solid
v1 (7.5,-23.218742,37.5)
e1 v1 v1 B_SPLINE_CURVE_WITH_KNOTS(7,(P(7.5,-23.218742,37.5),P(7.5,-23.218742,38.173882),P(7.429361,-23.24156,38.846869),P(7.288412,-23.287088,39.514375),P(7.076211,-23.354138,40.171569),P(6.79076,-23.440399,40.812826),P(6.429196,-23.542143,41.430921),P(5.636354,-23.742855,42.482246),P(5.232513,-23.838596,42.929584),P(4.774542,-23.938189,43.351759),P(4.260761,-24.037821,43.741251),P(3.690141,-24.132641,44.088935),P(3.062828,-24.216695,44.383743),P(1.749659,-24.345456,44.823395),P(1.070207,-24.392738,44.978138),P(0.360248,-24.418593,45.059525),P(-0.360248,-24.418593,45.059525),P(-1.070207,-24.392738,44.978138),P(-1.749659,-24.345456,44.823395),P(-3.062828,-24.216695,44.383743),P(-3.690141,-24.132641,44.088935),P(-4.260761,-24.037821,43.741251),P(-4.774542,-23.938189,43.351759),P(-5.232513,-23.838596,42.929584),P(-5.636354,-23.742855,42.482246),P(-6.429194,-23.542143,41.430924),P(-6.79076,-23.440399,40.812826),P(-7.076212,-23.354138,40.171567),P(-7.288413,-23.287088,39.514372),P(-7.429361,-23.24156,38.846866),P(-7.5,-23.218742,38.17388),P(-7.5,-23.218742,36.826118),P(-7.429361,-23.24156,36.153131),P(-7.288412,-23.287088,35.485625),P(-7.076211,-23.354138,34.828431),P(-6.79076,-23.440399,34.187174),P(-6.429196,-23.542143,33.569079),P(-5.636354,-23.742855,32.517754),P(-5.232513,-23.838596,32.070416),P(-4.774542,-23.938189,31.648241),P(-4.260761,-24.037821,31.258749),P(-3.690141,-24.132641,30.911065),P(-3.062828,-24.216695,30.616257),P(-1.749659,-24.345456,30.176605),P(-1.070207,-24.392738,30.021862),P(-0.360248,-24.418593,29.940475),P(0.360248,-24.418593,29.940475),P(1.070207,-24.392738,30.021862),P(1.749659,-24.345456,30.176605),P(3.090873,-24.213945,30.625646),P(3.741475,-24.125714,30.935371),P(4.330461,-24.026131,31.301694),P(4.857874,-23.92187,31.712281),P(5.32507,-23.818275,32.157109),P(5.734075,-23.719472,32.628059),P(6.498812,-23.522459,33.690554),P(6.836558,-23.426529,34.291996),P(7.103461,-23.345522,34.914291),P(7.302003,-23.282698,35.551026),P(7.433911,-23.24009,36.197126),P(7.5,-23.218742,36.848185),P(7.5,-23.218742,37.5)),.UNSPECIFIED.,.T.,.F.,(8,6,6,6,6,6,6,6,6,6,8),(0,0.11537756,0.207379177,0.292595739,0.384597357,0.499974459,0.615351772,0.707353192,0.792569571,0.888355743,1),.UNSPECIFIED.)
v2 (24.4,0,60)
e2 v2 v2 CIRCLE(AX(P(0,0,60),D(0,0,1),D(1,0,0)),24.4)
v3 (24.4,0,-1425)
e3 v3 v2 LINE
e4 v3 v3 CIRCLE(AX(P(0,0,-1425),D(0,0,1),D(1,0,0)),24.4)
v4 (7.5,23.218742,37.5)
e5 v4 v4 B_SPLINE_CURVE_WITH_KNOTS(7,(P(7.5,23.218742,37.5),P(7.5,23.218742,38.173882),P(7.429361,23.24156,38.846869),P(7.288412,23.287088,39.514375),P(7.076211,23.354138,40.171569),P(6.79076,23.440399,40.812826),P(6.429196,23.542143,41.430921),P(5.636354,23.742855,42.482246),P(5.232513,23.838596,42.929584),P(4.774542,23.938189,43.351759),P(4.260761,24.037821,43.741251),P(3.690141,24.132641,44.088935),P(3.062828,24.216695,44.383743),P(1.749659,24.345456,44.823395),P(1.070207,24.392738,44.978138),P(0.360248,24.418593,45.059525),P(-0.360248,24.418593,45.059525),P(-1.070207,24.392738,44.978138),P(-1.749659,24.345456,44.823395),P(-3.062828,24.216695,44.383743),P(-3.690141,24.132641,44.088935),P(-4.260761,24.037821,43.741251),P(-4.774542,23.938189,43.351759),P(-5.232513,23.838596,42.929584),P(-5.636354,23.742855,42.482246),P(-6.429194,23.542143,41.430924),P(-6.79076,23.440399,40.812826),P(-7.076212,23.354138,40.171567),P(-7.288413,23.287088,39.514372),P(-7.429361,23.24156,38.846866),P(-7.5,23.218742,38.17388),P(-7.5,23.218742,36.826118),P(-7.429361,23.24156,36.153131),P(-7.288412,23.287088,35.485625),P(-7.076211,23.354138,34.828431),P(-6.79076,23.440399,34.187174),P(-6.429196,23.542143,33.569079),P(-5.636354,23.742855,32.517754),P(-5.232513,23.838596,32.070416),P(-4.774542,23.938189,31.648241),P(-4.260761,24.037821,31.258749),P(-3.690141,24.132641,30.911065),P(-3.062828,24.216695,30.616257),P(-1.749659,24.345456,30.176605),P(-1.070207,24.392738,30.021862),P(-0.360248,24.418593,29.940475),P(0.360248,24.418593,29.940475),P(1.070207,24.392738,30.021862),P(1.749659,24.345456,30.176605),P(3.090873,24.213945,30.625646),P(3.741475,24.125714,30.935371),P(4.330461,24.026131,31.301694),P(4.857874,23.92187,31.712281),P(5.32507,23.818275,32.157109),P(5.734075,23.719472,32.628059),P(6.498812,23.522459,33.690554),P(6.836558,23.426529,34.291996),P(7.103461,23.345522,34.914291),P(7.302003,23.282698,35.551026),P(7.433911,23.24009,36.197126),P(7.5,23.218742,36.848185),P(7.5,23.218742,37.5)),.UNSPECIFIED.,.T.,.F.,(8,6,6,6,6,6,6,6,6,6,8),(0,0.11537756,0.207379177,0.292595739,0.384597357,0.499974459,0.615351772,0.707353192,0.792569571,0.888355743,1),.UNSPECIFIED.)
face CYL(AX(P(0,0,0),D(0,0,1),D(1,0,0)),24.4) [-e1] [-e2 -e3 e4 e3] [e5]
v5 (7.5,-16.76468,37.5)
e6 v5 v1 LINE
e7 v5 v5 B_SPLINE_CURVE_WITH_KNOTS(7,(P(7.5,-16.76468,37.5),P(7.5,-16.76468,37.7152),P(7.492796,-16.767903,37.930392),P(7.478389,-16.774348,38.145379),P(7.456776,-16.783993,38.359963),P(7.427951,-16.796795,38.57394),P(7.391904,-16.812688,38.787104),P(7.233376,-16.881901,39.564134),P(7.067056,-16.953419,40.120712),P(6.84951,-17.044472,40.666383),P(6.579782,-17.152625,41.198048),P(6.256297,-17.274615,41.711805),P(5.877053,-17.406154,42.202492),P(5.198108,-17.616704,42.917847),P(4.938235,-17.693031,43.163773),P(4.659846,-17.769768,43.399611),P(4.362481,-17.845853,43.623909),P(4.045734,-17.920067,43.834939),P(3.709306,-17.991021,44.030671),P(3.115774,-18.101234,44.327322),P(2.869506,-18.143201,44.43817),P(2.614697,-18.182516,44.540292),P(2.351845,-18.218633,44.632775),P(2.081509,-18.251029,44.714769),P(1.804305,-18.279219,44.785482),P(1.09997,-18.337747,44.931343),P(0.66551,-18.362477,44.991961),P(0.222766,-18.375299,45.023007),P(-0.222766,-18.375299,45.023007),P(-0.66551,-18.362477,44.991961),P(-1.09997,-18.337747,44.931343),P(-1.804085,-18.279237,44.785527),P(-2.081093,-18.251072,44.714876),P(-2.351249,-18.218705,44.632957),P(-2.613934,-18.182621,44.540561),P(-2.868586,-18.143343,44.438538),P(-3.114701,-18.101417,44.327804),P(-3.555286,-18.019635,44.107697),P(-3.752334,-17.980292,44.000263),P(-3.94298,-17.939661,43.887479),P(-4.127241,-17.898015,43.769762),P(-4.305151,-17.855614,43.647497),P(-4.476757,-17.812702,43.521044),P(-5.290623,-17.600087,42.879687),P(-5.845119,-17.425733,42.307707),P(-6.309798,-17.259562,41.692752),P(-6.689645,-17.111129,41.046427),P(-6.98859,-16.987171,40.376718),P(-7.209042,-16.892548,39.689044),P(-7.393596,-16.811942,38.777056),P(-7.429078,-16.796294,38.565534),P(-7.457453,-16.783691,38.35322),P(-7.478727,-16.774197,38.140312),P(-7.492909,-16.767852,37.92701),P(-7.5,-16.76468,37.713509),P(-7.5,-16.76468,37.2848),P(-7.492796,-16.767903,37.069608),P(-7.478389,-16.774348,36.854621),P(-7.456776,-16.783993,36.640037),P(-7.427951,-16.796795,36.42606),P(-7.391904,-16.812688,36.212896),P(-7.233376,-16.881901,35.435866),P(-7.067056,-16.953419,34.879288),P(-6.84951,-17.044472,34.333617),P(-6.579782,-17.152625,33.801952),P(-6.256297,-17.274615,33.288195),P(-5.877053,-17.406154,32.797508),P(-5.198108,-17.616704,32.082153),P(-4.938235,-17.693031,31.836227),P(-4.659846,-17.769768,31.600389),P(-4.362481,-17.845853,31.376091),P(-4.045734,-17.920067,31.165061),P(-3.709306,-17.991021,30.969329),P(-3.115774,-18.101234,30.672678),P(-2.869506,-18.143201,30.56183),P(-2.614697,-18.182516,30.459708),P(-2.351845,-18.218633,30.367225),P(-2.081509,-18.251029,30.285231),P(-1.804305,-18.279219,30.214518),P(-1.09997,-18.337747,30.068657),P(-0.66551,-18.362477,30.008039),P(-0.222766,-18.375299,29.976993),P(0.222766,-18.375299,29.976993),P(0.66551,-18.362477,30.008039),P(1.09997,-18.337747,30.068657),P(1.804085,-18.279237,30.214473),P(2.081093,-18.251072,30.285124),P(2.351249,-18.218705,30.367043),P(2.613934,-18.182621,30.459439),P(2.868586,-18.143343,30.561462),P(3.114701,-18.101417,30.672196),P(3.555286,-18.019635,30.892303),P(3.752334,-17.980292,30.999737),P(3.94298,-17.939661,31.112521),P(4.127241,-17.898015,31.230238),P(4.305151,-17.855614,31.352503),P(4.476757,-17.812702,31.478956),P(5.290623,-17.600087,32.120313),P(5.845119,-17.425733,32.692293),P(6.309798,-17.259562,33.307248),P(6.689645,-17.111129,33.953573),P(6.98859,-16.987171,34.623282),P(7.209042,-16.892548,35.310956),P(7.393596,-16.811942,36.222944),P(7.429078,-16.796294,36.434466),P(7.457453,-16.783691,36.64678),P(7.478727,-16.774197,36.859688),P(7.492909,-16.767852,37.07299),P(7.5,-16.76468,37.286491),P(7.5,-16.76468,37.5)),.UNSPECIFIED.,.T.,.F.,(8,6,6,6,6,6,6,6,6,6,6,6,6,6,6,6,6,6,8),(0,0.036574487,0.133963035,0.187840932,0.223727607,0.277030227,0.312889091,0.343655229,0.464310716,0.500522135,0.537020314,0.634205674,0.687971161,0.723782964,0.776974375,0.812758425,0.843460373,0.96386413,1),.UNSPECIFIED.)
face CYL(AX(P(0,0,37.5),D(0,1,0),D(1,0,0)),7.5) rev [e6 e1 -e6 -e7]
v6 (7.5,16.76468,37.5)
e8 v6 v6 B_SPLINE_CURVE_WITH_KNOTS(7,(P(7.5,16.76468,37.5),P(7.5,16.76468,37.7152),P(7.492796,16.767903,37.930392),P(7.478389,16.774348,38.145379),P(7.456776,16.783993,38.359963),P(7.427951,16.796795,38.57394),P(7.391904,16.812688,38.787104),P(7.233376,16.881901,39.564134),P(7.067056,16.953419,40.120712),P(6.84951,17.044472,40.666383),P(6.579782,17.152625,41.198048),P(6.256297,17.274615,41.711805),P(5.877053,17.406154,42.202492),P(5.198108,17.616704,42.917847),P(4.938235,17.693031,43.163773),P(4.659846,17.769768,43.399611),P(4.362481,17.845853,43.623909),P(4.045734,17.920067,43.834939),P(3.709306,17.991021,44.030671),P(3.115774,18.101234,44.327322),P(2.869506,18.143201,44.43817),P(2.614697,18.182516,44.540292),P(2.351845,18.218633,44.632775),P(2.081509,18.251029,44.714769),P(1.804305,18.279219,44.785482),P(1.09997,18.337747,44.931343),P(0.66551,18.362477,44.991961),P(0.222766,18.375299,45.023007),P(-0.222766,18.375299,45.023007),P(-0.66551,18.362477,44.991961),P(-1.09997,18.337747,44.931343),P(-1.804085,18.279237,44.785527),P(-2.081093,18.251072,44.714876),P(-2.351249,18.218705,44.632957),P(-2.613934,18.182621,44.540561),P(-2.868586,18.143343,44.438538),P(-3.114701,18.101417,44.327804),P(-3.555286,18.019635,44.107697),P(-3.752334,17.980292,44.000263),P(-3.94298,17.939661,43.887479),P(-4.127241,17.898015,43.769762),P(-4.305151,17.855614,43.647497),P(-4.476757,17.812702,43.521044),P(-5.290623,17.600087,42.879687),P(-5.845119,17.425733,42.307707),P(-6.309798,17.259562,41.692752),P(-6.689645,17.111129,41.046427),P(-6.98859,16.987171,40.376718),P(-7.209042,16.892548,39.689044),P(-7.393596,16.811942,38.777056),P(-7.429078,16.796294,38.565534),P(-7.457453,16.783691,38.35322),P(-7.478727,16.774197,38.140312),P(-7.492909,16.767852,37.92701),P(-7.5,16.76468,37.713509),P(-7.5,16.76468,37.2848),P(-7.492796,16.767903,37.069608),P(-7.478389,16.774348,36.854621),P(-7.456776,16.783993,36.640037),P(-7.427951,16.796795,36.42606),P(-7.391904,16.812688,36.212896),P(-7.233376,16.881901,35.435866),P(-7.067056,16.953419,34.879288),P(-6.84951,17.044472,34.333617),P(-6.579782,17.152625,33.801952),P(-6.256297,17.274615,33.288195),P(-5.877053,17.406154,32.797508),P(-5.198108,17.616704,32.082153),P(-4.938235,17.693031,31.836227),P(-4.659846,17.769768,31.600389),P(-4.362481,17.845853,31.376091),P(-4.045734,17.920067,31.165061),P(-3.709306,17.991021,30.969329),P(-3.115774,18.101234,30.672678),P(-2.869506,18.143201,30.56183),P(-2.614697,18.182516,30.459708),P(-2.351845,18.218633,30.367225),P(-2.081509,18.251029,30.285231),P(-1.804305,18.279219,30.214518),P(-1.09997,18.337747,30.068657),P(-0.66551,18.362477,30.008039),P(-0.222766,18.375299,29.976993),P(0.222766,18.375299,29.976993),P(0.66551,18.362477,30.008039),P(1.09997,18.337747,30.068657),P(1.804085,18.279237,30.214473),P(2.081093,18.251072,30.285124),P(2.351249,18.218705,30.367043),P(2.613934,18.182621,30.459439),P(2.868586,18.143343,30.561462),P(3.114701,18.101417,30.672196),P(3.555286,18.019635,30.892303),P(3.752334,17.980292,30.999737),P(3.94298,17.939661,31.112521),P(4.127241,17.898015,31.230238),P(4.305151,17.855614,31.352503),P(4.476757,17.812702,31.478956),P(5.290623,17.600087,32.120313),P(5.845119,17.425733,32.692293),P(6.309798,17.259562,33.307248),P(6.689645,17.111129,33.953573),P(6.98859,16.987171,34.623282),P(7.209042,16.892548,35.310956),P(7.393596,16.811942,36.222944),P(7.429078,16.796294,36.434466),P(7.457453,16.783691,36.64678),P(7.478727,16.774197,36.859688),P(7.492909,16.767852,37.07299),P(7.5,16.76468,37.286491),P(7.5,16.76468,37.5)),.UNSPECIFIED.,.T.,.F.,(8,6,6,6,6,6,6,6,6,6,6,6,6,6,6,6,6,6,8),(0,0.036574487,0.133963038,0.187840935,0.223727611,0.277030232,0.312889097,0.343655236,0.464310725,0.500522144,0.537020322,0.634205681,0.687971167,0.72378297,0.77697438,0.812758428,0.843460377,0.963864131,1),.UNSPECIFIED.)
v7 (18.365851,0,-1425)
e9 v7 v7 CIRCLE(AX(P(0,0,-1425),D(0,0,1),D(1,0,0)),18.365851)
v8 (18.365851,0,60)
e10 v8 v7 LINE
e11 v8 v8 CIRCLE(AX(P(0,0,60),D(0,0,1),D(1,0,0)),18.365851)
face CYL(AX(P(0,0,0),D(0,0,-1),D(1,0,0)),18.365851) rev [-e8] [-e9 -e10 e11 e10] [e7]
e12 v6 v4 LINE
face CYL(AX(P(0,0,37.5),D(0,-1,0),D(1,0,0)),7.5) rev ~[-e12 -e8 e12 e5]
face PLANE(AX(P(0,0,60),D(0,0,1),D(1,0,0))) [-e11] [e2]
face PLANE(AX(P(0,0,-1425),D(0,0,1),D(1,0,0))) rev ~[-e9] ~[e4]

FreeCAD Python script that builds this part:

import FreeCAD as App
import Part
import Sketcher
from FreeCAD import Vector

doc = App.newDocument("Part")
body = doc.addObject("PartDesign::Body", "Body")

sketch1 = body.newObject("Sketcher::SketchObject", "Sketch")
sketch1.AttachmentSupport = (doc.getObject("XY_Plane"), [""])
sketch1.MapMode = "FlatFace"
sketch1.addGeometry(Part.Circle(Vector(0, 0, 0), Vector(0, 0, 1), 24.4), False)
sketch1.addGeometry(Part.Circle(Vector(0, 0, 0), Vector(0, 0, 1), 18.365851), False)
sketch1.addConstraint(Sketcher.Constraint("Coincident", 0, 3, -1, 1))
sketch1.addConstraint(Sketcher.Constraint("Coincident", 1, 3, -1, 1))
sketch1.addConstraint(Sketcher.Constraint("Diameter", 0, 48.8))
sketch1.addConstraint(Sketcher.Constraint("Diameter", 1, 36.731702))
pad1 = body.newObject("PartDesign::Pad", "Pad")
pad1.Profile = sketch1
pad1.Length = 60

sketch2 = body.newObject("Sketcher::SketchObject", "Sketch001")
sketch2.AttachmentSupport = (doc.getObject("XY_Plane"), [""])
sketch2.MapMode = "FlatFace"
sketch2.addGeometry(Part.Circle(Vector(0, 0, 0), Vector(0, 0, 1), 24.4), False)
sketch2.addGeometry(Part.Circle(Vector(0, 0, 0), Vector(0, 0, 1), 18.365851), False)
sketch2.addConstraint(Sketcher.Constraint("Coincident", 0, 3, -1, 1))
sketch2.addConstraint(Sketcher.Constraint("Coincident", 1, 3, -1, 1))
sketch2.addConstraint(Sketcher.Constraint("Diameter", 0, 48.8))
sketch2.addConstraint(Sketcher.Constraint("Diameter", 1, 36.731702))
pad2 = body.newObject("PartDesign::Pad", "Pad001")
pad2.Profile = sketch2
pad2.Length = 1425
pad2.Reversed = True

sketch3 = body.newObject("Sketcher::SketchObject", "Sketch002")
sketch3.AttachmentSupport = (doc.getObject("XZ_Plane"), [""])
sketch3.MapMode = "FlatFace"
sketch3.addGeometry(Part.Circle(Vector(0, 37.5, 0), Vector(0, 0, 1), 7.5), False)
sketch3.addConstraint(Sketcher.Constraint("PointOnObject", 0, 3, -2))
sketch3.addConstraint(Sketcher.Constraint("Diameter", 0, 15.0))
sketch3.addConstraint(Sketcher.Constraint("DistanceY", -1, 1, 0, 3, 37.5))
pocket1 = body.newObject("PartDesign::Pocket", "Pocket")
pocket1.Profile = sketch3
pocket1.Type = "ThroughAll"
pocket1.Midplane = True

doc.recompute()
